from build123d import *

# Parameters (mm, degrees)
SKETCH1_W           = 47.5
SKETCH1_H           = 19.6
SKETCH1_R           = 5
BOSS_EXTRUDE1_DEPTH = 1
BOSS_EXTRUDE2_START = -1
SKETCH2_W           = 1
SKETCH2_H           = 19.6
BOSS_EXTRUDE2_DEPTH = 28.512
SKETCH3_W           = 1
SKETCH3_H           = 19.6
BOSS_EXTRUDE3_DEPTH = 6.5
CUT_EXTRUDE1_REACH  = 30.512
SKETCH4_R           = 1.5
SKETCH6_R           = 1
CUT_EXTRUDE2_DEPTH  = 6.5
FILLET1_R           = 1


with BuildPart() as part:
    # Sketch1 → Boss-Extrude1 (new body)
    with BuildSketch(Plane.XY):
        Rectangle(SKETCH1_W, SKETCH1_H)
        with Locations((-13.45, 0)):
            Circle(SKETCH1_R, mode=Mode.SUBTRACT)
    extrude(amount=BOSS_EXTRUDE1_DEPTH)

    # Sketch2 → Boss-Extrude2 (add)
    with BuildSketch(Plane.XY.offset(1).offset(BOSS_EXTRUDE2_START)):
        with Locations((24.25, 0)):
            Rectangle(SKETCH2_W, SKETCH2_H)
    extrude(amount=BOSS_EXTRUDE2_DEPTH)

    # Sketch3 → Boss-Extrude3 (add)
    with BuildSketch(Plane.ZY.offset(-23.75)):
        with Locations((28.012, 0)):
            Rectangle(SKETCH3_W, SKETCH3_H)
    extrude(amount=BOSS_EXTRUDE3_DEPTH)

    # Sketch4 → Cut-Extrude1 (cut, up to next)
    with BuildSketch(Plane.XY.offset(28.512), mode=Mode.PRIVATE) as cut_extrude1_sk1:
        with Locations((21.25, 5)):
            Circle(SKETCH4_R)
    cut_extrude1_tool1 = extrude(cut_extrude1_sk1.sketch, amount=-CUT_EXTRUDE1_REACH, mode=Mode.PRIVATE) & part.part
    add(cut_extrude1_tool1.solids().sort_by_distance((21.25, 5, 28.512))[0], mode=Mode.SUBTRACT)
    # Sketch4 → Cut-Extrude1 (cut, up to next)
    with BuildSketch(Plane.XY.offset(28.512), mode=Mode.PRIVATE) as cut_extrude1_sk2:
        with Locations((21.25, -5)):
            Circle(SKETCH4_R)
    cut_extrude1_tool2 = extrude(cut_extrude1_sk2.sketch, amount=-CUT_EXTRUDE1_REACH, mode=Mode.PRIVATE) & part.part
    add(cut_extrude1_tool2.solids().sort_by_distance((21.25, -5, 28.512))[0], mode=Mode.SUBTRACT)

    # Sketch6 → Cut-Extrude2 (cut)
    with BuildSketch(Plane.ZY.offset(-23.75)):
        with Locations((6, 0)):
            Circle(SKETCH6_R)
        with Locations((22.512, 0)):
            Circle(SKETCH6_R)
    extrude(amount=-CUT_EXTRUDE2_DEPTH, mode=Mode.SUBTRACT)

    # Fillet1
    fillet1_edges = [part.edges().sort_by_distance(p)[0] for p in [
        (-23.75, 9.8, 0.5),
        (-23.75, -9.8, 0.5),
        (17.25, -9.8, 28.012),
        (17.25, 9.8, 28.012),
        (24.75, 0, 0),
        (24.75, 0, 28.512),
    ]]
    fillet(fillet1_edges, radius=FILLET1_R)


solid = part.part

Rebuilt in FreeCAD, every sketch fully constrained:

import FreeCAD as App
import Part
import Sketcher
from FreeCAD import Vector


def edges_at(feature, points):
    """Names of the edges that pass closest to the given points."""
    edges = feature.Shape.Edges
    near = lambda p: min(range(len(edges)), key=lambda i: edges[i].distToShape(Part.Vertex(*p))[0])
    return sorted({f"Edge{near(p) + 1}" for p in points})


def add_polygon(sketch, points):
    """Adds a closed chain of lines whose ends are joined by coincident constraints."""
    first, n = sketch.GeometryCount, len(points)
    for a, b in zip(points, points[1:] + points[:1]):
        sketch.addGeometry(Part.LineSegment(App.Vector(*a, 0), App.Vector(*b, 0)), False)
    for i in range(n):
        sketch.addConstraint(Sketcher.Constraint("Coincident", first + i, 2, first + (i + 1) % n, 1))

doc = App.newDocument("Part")
params = doc.addObject("Spreadsheet::Sheet", "Params")
for row, (alias, value) in enumerate([
    ("sketch1_diameter", "10 mm"),
    ("sketch1_width", "47.5 mm"),
    ("sketch1_height", "19.6 mm"),
    ("pad1_length", "1 mm"),
    ("sketch2_width", "1 mm"),
    ("sketch2_height", "19.6 mm"),
    ("pad2_length", "28.512 mm"),
    ("sketch3_height", "1 mm"),
    ("sketch3_width", "19.6 mm"),
    ("pad3_length", "6.5 mm"),
    ("sketch4_diameter", "3 mm"),
    ("sketch5_diameter", "3 mm"),
    ("sketch6_diameter", "2 mm"),
    ("pocket3_length", "6.5 mm"),
    ("fillet_radius", "1 mm"),
], start=1):
    params.set(f"A{row}", alias)
    params.set(f"B{row}", "=" + value)
    params.setAlias(f"B{row}", alias)

body = doc.addObject("PartDesign::Body", "Body")

# Sketch on XY plane
sketch1 = body.newObject("Sketcher::SketchObject", "Sketch")
sketch1.AttachmentSupport = (doc.getObject("XY_Plane"), [""])
sketch1.MapMode = "FlatFace"
add_polygon(sketch1, [(-24, 10), (-24, -10), (24, -10), (24, 10)])  # lines 0-3
sketch1.addGeometry(Part.Circle(Vector(-13, 0, 0), Vector(0, 0, 1), 5), False)  # 4
sketch1.addConstraint([
    Sketcher.Constraint("Vertical", 0),
    Sketcher.Constraint("Horizontal", 1),
    Sketcher.Constraint("Vertical", 2),
    Sketcher.Constraint("Horizontal", 3),
    Sketcher.Constraint("Symmetric", 0, 2, 2, 2, -1, 1),
    Sketcher.Constraint("PointOnObject", 4, 3, -1),
    Sketcher.Constraint("Diameter", 4, 10.0),
    Sketcher.Constraint("DistanceX", 1, 1, 1, 2, 47.5),
    Sketcher.Constraint("DistanceY", 0, 2, 0, 1, 19.6),
    Sketcher.Constraint("DistanceX", 0, 2, 4, 3, 10.3),
])
sketch1.setExpression("Constraints[10]", "Params.sketch1_diameter")
sketch1.setExpression("Constraints[11]", "Params.sketch1_width")
sketch1.setExpression("Constraints[12]", "Params.sketch1_height")
pad1 = body.newObject("PartDesign::Pad", "Pad")
pad1.Profile = sketch1
pad1.setExpression("Length", "Params.pad1_length")

# Sketch on XY plane
sketch2 = body.newObject("Sketcher::SketchObject", "Sketch001")
sketch2.AttachmentSupport = (doc.getObject("XY_Plane"), [""])
sketch2.MapMode = "FlatFace"
add_polygon(sketch2, [(23.8, 9.8), (23.8, -9.8), (24.8, -9.8), (24.8, 9.8)])  # lines 0-3
sketch2.addConstraint([
    Sketcher.Constraint("Vertical", 0),
    Sketcher.Constraint("Horizontal", 1),
    Sketcher.Constraint("Vertical", 2),
    Sketcher.Constraint("Horizontal", 3),
    Sketcher.Constraint("DistanceX", 1, 1, 1, 2, 1.0),
    Sketcher.Constraint("DistanceY", 0, 2, 0, 1, 19.6),
    Sketcher.Constraint("DistanceY", 0, 2, -1, 1, 9.8),
    Sketcher.Constraint("DistanceX", -1, 1, 0, 2, 23.75),
])
sketch2.setExpression("Constraints[8]", "Params.sketch2_width")
sketch2.setExpression("Constraints[9]", "Params.sketch2_height")
pad2 = body.newObject("PartDesign::Pad", "Pad001")
pad2.Profile = sketch2
pad2.setExpression("Length", "Params.pad2_length")

# Sketch on YZ plane
sketch3 = body.newObject("Sketcher::SketchObject", "Sketch002")
sketch3.AttachmentSupport = (doc.getObject("YZ_Plane"), [""])
sketch3.MapMode = "FlatFace"
sketch3.AttachmentOffset = App.Placement(Vector(0, 0, 23.75), App.Rotation())
add_polygon(sketch3, [(9.8, 27.5), (-9.8, 27.5), (-9.8, 28.5), (9.8, 28.5)])  # lines 0-3
sketch3.addConstraint([
    Sketcher.Constraint("Horizontal", 0),
    Sketcher.Constraint("Vertical", 1),
    Sketcher.Constraint("Horizontal", 2),
    Sketcher.Constraint("Vertical", 3),
    Sketcher.Constraint("DistanceY", 1, 1, 1, 2, 1.0),
    Sketcher.Constraint("DistanceX", 0, 2, 0, 1, 19.6),
    Sketcher.Constraint("DistanceX", 0, 2, -1, 1, 9.8),
    Sketcher.Constraint("DistanceY", -1, 1, 0, 2, 27.512),
])
sketch3.setExpression("Constraints[8]", "Params.sketch3_height")
sketch3.setExpression("Constraints[9]", "Params.sketch3_width")
pad3 = body.newObject("PartDesign::Pad", "Pad002")
pad3.Profile = sketch3
pad3.setExpression("Length", "Params.pad3_length")
pad3.Reversed = True

# Sketch on XY plane
sketch4 = body.newObject("Sketcher::SketchObject", "Sketch003")
sketch4.AttachmentSupport = (doc.getObject("XY_Plane"), [""])
sketch4.MapMode = "FlatFace"
sketch4.AttachmentOffset = App.Placement(Vector(0, 0, 28.512), App.Rotation())
sketch4.addGeometry(Part.Circle(Vector(21.2, 5, 0), Vector(0, 0, 1), 1.5), False)
sketch4.addConstraint([
    Sketcher.Constraint("Diameter", 0, 3.0),
    Sketcher.Constraint("DistanceY", -1, 1, 0, 3, 5.0),
    Sketcher.Constraint("DistanceX", -1, 1, 0, 3, 21.25),
])
sketch4.setExpression("Constraints[0]", "Params.sketch4_diameter")
pocket1 = body.newObject("PartDesign::Pocket", "Pocket")
pocket1.Profile = sketch4
pocket1.Type = "UpToFirst"

# Sketch on XY plane
sketch5 = body.newObject("Sketcher::SketchObject", "Sketch004")
sketch5.AttachmentSupport = (doc.getObject("XY_Plane"), [""])
sketch5.MapMode = "FlatFace"
sketch5.AttachmentOffset = App.Placement(Vector(0, 0, 28.512), App.Rotation())
sketch5.addGeometry(Part.Circle(Vector(21.2, -5, 0), Vector(0, 0, 1), 1.5), False)
sketch5.addConstraint([
    Sketcher.Constraint("Diameter", 0, 3.0),
    Sketcher.Constraint("DistanceY", 0, 3, -1, 1, 5.0),
    Sketcher.Constraint("DistanceX", -1, 1, 0, 3, 21.25),
])
sketch5.setExpression("Constraints[0]", "Params.sketch5_diameter")
pocket2 = body.newObject("PartDesign::Pocket", "Pocket001")
pocket2.Profile = sketch5
pocket2.Type = "UpToFirst"

# Sketch on YZ plane
sketch6 = body.newObject("Sketcher::SketchObject", "Sketch005")
sketch6.AttachmentSupport = (doc.getObject("YZ_Plane"), [""])
sketch6.MapMode = "FlatFace"
sketch6.AttachmentOffset = App.Placement(Vector(0, 0, 23.75), App.Rotation())
sketch6.addGeometry([
    Part.Circle(Vector(0, 6, 0), Vector(0, 0, 1), 1),
    Part.Circle(Vector(0, 22.5, 0), Vector(0, 0, 1), 1),
], False)
sketch6.addConstraint([
    Sketcher.Constraint("Equal", 0, 1),
    Sketcher.Constraint("PointOnObject", 0, 3, -2),
    Sketcher.Constraint("PointOnObject", 1, 3, -2),
    Sketcher.Constraint("Diameter", 0, 2.0),
    Sketcher.Constraint("DistanceY", -1, 1, 0, 3, 6.0),
    Sketcher.Constraint("DistanceY", -1, 1, 1, 3, 22.512),
])
sketch6.setExpression("Constraints[3]", "Params.sketch6_diameter")
pocket3 = body.newObject("PartDesign::Pocket", "Pocket002")
pocket3.Profile = sketch6
pocket3.setExpression("Length", "Params.pocket3_length")
pocket3.Reversed = True
doc.recompute()

fillet = body.newObject("PartDesign::Fillet", "Fillet")
fillet.Base = (pocket3, edges_at(pocket3, [
    (-23.75, 9.8, 0.5),
    (-23.75, -9.8, 0.5),
    (17.25, -9.8, 28.012),
    (17.25, 9.8, 28.012),
    (24.75, 0, 0),
    (24.75, 0, 28.512),
]))
fillet.setExpression("Radius", "Params.fillet_radius")

doc.recompute()
